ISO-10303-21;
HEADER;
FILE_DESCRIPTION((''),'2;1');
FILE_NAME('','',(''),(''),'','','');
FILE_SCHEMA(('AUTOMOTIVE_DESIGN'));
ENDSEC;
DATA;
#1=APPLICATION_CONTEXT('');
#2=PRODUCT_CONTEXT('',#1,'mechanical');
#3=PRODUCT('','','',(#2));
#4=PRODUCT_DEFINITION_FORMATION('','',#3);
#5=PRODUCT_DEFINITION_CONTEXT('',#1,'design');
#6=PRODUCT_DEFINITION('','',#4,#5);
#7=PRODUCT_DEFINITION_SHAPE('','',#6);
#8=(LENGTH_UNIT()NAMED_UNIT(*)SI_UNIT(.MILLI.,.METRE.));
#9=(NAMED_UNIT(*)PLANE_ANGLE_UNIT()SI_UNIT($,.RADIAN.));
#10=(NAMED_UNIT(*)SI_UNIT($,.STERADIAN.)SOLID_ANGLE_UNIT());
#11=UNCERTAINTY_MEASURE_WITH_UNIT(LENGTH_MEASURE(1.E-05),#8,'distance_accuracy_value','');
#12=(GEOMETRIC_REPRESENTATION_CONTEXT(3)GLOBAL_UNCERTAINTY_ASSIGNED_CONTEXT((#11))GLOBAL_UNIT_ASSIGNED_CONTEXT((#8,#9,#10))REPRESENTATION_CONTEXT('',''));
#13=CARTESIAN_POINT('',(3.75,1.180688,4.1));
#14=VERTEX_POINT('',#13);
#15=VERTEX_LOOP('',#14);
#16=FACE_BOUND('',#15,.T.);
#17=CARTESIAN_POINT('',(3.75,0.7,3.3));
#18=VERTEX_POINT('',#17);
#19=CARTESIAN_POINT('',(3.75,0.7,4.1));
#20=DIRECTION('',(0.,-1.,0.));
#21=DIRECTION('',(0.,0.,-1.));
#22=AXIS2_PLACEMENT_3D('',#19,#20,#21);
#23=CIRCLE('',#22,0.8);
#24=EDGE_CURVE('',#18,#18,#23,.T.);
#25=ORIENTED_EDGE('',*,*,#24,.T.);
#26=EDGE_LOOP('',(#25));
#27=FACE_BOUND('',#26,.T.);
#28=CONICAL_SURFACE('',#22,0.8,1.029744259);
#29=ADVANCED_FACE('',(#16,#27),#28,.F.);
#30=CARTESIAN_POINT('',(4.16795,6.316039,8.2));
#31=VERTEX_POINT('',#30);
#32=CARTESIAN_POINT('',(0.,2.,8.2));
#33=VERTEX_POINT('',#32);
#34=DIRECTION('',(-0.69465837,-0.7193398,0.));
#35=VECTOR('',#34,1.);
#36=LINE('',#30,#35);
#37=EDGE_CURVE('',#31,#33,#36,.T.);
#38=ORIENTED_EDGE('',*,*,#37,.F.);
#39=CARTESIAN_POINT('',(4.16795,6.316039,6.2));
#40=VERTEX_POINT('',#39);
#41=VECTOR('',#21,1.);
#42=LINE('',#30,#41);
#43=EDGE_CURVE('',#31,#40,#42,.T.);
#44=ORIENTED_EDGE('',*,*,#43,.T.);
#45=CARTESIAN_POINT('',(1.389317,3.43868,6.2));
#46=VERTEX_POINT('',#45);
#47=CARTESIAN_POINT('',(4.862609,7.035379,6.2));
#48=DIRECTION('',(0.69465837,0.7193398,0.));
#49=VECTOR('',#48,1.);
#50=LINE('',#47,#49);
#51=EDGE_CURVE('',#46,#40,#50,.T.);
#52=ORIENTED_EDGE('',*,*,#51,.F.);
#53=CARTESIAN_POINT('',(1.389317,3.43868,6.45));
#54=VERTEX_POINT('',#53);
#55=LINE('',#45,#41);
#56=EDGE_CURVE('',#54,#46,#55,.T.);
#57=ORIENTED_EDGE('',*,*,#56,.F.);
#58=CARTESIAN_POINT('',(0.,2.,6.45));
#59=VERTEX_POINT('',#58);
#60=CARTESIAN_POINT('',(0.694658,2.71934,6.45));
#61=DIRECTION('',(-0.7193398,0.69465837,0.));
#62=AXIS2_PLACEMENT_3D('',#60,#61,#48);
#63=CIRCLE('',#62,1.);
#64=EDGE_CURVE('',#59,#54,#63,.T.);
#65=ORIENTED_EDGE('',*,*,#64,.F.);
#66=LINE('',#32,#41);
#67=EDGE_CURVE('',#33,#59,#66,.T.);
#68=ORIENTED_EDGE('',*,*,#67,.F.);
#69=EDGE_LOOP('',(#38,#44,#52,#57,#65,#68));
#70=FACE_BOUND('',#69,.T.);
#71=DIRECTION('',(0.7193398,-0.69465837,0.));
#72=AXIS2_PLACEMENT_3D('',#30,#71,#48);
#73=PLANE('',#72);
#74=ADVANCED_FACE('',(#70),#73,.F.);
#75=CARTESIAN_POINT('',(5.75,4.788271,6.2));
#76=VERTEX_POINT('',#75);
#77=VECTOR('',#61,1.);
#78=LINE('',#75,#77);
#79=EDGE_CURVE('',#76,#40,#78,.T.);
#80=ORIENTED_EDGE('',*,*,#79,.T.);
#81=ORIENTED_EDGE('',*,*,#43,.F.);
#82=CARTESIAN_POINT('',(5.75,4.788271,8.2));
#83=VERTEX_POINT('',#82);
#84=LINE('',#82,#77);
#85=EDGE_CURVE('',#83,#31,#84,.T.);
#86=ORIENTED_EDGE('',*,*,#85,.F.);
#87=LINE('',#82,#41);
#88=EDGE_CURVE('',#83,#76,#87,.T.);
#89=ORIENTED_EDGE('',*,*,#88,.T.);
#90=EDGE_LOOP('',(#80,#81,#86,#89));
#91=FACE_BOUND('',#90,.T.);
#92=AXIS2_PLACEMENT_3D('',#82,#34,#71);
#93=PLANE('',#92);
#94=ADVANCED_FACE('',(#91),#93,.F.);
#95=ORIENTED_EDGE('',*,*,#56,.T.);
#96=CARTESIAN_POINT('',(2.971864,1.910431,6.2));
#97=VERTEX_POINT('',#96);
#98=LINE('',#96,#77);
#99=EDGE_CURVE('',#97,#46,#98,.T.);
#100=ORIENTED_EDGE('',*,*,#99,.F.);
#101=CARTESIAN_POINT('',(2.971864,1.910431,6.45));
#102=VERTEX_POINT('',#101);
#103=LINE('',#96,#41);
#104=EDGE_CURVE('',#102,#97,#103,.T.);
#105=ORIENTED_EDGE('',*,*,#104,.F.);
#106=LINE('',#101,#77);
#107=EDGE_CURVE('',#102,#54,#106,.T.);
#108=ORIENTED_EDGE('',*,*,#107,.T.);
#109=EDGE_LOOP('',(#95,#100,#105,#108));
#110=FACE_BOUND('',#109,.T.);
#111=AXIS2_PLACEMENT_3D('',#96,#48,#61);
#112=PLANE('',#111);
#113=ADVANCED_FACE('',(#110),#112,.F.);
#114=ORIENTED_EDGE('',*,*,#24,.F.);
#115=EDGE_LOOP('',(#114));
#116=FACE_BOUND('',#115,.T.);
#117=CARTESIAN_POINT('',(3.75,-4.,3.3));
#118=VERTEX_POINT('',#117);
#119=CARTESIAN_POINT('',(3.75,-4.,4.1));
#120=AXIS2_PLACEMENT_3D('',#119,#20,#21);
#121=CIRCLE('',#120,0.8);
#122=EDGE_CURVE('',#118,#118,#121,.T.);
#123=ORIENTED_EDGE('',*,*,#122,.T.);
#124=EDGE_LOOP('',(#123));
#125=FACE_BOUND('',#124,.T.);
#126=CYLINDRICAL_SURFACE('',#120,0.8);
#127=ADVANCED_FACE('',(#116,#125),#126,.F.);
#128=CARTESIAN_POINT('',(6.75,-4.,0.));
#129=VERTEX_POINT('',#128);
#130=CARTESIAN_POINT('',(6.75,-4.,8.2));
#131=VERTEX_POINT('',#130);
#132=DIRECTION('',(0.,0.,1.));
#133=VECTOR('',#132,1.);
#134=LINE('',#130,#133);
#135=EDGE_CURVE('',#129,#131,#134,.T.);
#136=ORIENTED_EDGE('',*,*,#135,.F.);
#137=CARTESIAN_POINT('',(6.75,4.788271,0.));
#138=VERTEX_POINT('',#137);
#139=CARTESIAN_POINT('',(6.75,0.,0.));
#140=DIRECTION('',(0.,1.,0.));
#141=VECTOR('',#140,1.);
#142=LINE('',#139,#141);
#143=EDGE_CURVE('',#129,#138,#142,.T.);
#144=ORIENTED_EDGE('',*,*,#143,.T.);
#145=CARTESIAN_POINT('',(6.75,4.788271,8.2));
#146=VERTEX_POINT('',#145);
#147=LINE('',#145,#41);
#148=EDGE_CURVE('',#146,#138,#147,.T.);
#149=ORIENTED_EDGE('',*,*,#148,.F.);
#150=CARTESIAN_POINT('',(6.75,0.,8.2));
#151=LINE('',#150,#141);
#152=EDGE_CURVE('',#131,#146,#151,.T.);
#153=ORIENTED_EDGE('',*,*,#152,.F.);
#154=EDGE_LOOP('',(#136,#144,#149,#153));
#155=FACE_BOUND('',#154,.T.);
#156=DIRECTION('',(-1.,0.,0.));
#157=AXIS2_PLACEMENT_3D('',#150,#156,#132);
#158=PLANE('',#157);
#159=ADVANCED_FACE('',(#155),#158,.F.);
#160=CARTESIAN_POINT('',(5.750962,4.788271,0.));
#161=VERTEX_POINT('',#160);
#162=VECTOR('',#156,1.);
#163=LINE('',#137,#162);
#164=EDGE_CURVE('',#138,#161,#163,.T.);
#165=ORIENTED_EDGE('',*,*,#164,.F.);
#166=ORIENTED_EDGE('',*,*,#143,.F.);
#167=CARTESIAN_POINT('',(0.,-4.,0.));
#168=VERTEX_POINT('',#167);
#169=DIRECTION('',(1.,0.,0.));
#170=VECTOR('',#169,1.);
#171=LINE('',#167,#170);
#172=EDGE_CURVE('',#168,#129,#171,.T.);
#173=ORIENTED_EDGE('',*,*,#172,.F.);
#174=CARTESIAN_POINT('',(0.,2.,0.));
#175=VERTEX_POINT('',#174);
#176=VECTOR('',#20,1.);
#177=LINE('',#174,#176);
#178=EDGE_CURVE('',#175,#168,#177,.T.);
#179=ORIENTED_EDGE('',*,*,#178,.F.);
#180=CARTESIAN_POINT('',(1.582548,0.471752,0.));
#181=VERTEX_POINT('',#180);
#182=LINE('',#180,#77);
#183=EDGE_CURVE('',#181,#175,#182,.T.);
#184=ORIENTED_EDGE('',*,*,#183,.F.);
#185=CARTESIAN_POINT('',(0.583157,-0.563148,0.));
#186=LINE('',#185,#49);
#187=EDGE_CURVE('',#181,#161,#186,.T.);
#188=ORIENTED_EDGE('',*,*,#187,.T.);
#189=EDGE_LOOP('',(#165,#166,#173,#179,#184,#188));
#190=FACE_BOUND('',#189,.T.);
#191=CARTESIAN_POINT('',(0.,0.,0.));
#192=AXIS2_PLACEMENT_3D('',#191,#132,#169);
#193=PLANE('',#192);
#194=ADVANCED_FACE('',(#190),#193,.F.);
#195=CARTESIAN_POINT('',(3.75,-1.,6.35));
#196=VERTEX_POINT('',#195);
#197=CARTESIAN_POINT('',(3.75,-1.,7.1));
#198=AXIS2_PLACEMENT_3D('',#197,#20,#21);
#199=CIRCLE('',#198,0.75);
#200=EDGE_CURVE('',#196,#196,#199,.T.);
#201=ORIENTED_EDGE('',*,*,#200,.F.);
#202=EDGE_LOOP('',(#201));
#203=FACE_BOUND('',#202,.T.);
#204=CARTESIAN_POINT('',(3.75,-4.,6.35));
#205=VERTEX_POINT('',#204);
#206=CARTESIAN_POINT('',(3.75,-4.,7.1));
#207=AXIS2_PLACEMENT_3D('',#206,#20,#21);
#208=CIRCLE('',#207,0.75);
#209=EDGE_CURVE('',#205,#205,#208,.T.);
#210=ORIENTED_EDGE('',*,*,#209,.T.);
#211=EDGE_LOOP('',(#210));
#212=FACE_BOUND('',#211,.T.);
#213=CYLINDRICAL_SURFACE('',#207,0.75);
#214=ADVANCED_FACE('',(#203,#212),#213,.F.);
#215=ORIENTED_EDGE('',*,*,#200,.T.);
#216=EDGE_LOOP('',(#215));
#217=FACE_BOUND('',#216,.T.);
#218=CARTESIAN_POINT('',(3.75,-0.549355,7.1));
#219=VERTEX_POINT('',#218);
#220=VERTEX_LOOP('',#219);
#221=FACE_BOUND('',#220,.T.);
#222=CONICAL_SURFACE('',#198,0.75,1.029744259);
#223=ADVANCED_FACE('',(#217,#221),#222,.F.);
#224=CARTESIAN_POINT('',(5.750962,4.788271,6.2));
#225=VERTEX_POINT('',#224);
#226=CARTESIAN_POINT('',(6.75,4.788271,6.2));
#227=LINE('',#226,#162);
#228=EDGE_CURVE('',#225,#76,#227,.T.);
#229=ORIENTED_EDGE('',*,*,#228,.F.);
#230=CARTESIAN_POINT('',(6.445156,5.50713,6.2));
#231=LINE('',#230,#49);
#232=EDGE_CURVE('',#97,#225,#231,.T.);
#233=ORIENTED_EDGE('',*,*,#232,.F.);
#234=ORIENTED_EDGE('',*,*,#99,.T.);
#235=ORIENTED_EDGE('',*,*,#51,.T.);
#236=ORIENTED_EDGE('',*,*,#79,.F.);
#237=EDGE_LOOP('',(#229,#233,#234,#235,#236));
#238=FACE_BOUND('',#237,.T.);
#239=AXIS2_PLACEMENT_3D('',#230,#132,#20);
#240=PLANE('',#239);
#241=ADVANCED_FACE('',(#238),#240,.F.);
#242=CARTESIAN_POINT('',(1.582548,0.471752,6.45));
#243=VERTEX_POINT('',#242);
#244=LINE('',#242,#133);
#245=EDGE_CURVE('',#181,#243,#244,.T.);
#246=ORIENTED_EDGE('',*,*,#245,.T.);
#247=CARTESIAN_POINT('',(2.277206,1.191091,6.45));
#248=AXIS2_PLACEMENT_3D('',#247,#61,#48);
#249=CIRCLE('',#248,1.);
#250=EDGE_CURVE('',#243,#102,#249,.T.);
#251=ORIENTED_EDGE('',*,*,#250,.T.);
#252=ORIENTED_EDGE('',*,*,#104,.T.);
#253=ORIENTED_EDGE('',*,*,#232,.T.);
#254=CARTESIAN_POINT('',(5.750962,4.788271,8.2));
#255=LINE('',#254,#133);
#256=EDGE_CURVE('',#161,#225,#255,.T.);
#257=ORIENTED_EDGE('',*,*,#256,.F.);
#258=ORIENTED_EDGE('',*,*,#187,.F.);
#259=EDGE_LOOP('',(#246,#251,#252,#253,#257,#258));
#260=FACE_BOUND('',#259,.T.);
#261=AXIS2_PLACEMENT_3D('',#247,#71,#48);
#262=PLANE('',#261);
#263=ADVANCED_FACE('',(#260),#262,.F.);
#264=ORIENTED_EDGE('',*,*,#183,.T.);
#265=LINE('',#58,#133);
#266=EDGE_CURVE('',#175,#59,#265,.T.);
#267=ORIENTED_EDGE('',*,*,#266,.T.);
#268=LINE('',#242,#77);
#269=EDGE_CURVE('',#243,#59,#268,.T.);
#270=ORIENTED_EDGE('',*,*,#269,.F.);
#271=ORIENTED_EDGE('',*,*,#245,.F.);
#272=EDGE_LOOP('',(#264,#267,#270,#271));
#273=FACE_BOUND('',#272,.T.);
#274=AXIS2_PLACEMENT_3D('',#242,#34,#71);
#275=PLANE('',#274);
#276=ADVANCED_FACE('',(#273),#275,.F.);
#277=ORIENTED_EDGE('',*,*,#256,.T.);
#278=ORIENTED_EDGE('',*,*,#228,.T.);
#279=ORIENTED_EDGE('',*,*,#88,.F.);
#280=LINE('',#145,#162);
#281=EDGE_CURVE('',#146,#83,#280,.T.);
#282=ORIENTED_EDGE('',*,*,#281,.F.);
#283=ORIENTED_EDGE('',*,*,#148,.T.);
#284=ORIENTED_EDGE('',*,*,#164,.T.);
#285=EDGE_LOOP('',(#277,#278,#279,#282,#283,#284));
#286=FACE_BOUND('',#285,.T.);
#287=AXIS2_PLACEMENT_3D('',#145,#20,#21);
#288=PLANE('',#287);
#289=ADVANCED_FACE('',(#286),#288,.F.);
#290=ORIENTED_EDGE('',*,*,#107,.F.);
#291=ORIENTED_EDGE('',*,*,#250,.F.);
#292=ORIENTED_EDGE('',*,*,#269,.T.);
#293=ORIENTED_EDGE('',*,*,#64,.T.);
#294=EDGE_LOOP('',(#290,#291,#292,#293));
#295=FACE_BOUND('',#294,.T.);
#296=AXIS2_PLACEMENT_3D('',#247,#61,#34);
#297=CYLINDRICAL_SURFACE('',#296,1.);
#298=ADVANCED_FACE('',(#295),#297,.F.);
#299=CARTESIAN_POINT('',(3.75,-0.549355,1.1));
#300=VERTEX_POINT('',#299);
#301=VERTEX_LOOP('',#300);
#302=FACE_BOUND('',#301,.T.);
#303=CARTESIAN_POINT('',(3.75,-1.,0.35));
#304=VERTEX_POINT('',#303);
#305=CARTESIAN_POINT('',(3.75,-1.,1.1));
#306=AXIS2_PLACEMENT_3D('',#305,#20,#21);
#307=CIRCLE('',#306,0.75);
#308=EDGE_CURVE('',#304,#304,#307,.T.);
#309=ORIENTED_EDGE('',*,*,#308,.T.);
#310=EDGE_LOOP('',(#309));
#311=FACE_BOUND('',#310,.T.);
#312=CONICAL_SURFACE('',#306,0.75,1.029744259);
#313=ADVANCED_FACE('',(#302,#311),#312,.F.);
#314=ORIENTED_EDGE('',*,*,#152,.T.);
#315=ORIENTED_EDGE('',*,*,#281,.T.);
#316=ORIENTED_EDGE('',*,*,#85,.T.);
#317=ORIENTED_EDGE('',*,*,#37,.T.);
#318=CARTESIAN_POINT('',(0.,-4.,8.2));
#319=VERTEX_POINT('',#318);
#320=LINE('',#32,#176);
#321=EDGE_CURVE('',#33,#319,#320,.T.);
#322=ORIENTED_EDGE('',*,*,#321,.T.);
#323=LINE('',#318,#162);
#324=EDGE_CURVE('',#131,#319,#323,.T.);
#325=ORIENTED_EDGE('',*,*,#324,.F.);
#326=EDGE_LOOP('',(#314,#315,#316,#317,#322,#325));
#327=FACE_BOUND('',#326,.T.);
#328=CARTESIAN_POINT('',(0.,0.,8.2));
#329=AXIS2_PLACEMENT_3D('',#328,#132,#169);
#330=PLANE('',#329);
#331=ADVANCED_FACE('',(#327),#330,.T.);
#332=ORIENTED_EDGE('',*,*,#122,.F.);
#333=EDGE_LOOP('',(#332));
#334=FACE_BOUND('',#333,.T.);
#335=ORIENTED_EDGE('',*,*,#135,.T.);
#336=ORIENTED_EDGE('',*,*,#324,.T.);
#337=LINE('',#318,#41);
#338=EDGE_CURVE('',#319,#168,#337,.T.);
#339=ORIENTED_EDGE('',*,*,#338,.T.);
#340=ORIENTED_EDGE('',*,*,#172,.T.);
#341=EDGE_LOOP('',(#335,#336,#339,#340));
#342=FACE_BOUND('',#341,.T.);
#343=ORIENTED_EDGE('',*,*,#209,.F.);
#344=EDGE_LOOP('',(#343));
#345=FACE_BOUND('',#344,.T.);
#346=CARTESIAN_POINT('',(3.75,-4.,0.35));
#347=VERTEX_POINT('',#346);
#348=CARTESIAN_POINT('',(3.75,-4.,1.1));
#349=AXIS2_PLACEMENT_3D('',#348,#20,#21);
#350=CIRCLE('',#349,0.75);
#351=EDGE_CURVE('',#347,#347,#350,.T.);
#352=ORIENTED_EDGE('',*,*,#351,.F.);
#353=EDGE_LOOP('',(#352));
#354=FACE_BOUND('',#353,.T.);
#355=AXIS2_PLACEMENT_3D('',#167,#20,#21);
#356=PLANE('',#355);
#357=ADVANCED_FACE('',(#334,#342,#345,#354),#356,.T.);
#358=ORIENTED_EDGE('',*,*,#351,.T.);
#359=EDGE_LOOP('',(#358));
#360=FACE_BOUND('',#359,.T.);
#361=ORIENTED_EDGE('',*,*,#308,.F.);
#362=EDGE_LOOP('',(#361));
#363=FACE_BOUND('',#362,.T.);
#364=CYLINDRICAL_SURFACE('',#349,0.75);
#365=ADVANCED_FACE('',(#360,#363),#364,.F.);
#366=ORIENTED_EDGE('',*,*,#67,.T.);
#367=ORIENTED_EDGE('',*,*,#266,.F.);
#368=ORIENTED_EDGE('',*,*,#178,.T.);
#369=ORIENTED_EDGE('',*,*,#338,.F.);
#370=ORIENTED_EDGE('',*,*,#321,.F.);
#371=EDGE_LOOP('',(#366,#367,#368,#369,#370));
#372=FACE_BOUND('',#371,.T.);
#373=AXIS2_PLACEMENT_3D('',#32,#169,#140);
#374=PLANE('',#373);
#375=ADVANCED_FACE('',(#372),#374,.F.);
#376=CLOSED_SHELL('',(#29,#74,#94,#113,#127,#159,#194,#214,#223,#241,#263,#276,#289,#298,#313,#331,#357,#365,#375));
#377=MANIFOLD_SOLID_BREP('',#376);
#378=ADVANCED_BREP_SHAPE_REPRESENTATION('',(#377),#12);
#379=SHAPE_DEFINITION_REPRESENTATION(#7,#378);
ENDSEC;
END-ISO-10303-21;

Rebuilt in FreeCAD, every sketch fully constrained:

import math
import FreeCAD as App
import Part
import Sketcher
Q = App.Units.Quantity

doc = App.newDocument("Part")
params = doc.addObject("Spreadsheet::Sheet", "Params")
for row, (alias, value) in enumerate([
    ("sketch1_width", "1 mm"),
    ("sketch1_height", "2 mm"),
    ("sketch1_length", "6 mm"),
    ("sketch1_width2", "6.75 mm"),
    ("pad1_length", "8.2 mm"),
    ("sketch2_radius", "1 mm"),
    ("sketch2_width", "7 mm"),
    ("sketch2_height", "6.2 mm"),
    ("sketch2_height2", "6.45 mm"),
    ("pocket1_length", "2.2 mm"),
    ("sketch3_height", "8.2 mm"),
    ("sketch3_width", "6.75 mm"),
    ("pad2_length", "4 mm"),
    ("sketch4_diameter", "1.6 mm"),
    ("hole_diameter", "1.6 mm"),
    ("hole_depth", "4.7 mm"),
    ("sketch5_diameter", "1.5 mm"),
    ("hole2_diameter", "1.5 mm"),
    ("hole2_depth", "3 mm"),
], start=1):
    params.set(f"A{row}", alias)
    params.set(f"B{row}", "=" + value)
    params.setAlias(f"B{row}", alias)

body = doc.addObject("PartDesign::Body", "Body")

# Sketch on XY plane
sketch1 = body.newObject("Sketcher::SketchObject", "Sketch")
sketch1.AttachmentSupport = (doc.getObject("XY_Plane"), [""])
sketch1.MapMode = "FlatFace"
sketch1.addGeometry(Part.LineSegment(App.Vector(0, 0, 0), App.Vector(6.8, 0, 0)), False)
sketch1.addGeometry(Part.LineSegment(App.Vector(6.8, 0, 0), App.Vector(6.8, 4.8, 0)), False)
sketch1.addGeometry(Part.LineSegment(App.Vector(6.8, 4.8, 0), App.Vector(5.8, 4.8, 0)), False)
sketch1.addGeometry(Part.LineSegment(App.Vector(5.8, 4.8, 0), App.Vector(4.2, 6.3, 0)), False)
sketch1.addGeometry(Part.LineSegment(App.Vector(4.2, 6.3, 0), App.Vector(0, 2, 0)), False)
sketch1.addGeometry(Part.LineSegment(App.Vector(0, 2, 0), App.Vector(0, 0, 0)), False)
sketch1.addConstraint(Sketcher.Constraint("Coincident", 0, 2, 1, 1))
sketch1.addConstraint(Sketcher.Constraint("Coincident", 1, 2, 2, 1))
sketch1.addConstraint(Sketcher.Constraint("Coincident", 2, 2, 3, 1))
sketch1.addConstraint(Sketcher.Constraint("Coincident", 3, 2, 4, 1))
sketch1.addConstraint(Sketcher.Constraint("Coincident", 4, 2, 5, 1))
sketch1.addConstraint(Sketcher.Constraint("Coincident", 5, 2, 0, 1))
sketch1.addConstraint(Sketcher.Constraint("Horizontal", 0))
sketch1.addConstraint(Sketcher.Constraint("Vertical", 1))
sketch1.addConstraint(Sketcher.Constraint("Horizontal", 2))
sketch1.addConstraint(Sketcher.Constraint("Vertical", 5))
sketch1.addConstraint(Sketcher.Constraint("Coincident", 5, 2, -1, 1))
sketch1.addConstraint(Sketcher.Constraint("Perpendicular", 3, 4))
sketch1.addConstraint(Sketcher.Constraint("DistanceX", 2, 2, 2, 1, Q("1 mm")))
sketch1.addConstraint(Sketcher.Constraint("DistanceY", 5, 2, 5, 1, Q("2 mm")))
sketch1.addConstraint(Sketcher.Constraint("Angle", 3, Q("136 deg")))
sketch1.addConstraint(Sketcher.Constraint("Distance", 4, Q("6 mm")))
sketch1.addConstraint(Sketcher.Constraint("DistanceX", 0, 1, 0, 2, Q("6.75 mm")))
sketch1.setExpression("Constraints[12]", "Params.sketch1_width")
sketch1.setExpression("Constraints[13]", "Params.sketch1_height")
sketch1.setExpression("Constraints[15]", "Params.sketch1_length")
sketch1.setExpression("Constraints[16]", "Params.sketch1_width2")
pad1 = body.newObject("PartDesign::Pad", "Pad")
pad1.Profile = sketch1
pad1.setExpression("Length", "Params.pad1_length")

# Sketch on an angled plane
sketch2 = body.newObject("Sketcher::SketchObject", "Sketch001")
sketch2.Placement = App.Placement(App.Vector(-0.999391, 0.965101, 0), App.Rotation(App.Vector(0.69465837, 0.7193398, 0), App.Vector(0, 0, -0.999999999), App.Vector(-0.7193398, 0.69465837, 0), "ZXY"))
sketch2.addGeometry(Part.LineSegment(App.Vector(8.44, -6.2, 0), App.Vector(8.44, 0, 0)), False)
sketch2.addGeometry(Part.LineSegment(App.Vector(8.44, 0, 0), App.Vector(1.44, 0, 0)), False)
sketch2.addGeometry(Part.LineSegment(App.Vector(1.44, 0, 0), App.Vector(1.44, -6.45, 0)), False)
sketch2.addGeometry(Part.ArcOfCircle(Part.Circle(App.Vector(2.44, -6.45, 0), App.Vector(0, 0, 1), 1), math.radians(180), math.radians(360)), False)
sketch2.addGeometry(Part.LineSegment(App.Vector(3.44, -6.45, 0), App.Vector(3.44, -6.2, 0)), False)
sketch2.addGeometry(Part.LineSegment(App.Vector(3.44, -6.2, 0), App.Vector(8.44, -6.2, 0)), False)
sketch2.addConstraint(Sketcher.Constraint("Coincident", 0, 2, 1, 1))
sketch2.addConstraint(Sketcher.Constraint("Coincident", 1, 2, 2, 1))
sketch2.addConstraint(Sketcher.Constraint("Tangent", 2, 2, 3, 1))
sketch2.addConstraint(Sketcher.Constraint("Tangent", 3, 2, 4, 1))
sketch2.addConstraint(Sketcher.Constraint("Coincident", 4, 2, 5, 1))
sketch2.addConstraint(Sketcher.Constraint("Coincident", 5, 2, 0, 1))
sketch2.addConstraint(Sketcher.Constraint("Vertical", 0))
sketch2.addConstraint(Sketcher.Constraint("Horizontal", 1))
sketch2.addConstraint(Sketcher.Constraint("Vertical", 2))
sketch2.addConstraint(Sketcher.Constraint("Vertical", 4))
sketch2.addConstraint(Sketcher.Constraint("Horizontal", 5))
sketch2.addConstraint(Sketcher.Constraint("PointOnObject", 0, 2, -1))
sketch2.addConstraint(Sketcher.Constraint("Radius", 3, Q("1 mm")))
sketch2.addConstraint(Sketcher.Constraint("DistanceX", 1, 2, 1, 1, Q("7 mm")))
sketch2.addConstraint(Sketcher.Constraint("DistanceY", 0, 1, 0, 2, Q("6.2 mm")))
sketch2.addConstraint(Sketcher.Constraint("DistanceY", 2, 2, 2, 1, Q("6.45 mm")))
sketch2.addConstraint(Sketcher.Constraint("DistanceX", -1, 1, 3, 3, Q("2.43868 mm")))
sketch2.setExpression("Constraints[12]", "Params.sketch2_radius")
sketch2.setExpression("Constraints[13]", "Params.sketch2_width")
sketch2.setExpression("Constraints[14]", "Params.sketch2_height")
sketch2.setExpression("Constraints[15]", "Params.sketch2_height2")
pocket1 = body.newObject("PartDesign::Pocket", "Pocket")
pocket1.Profile = sketch2
pocket1.setExpression("Length", "Params.pocket1_length")

# Sketch on XZ plane
sketch3 = body.newObject("Sketcher::SketchObject", "Sketch002")
sketch3.AttachmentSupport = (doc.getObject("XZ_Plane"), [""])
sketch3.MapMode = "FlatFace"
sketch3.addGeometry(Part.LineSegment(App.Vector(0, 8, 0), App.Vector(0, 0, 0)), False)
sketch3.addGeometry(Part.LineSegment(App.Vector(0, 0, 0), App.Vector(7, 0, 0)), False)
sketch3.addGeometry(Part.LineSegment(App.Vector(7, 0, 0), App.Vector(7, 8, 0)), False)
sketch3.addGeometry(Part.LineSegment(App.Vector(7, 8, 0), App.Vector(0, 8, 0)), False)
sketch3.addConstraint(Sketcher.Constraint("Coincident", 0, 2, 1, 1))
sketch3.addConstraint(Sketcher.Constraint("Coincident", 1, 2, 2, 1))
sketch3.addConstraint(Sketcher.Constraint("Coincident", 2, 2, 3, 1))
sketch3.addConstraint(Sketcher.Constraint("Coincident", 3, 2, 0, 1))
sketch3.addConstraint(Sketcher.Constraint("Vertical", 0))
sketch3.addConstraint(Sketcher.Constraint("Horizontal", 1))
sketch3.addConstraint(Sketcher.Constraint("Vertical", 2))
sketch3.addConstraint(Sketcher.Constraint("Horizontal", 3))
sketch3.addConstraint(Sketcher.Constraint("Coincident", 0, 2, -1, 1))
sketch3.addConstraint(Sketcher.Constraint("DistanceY", 0, 2, 0, 1, Q("8.2 mm")))
sketch3.addConstraint(Sketcher.Constraint("DistanceX", 1, 1, 1, 2, Q("6.75 mm")))
sketch3.setExpression("Constraints[9]", "Params.sketch3_height")
sketch3.setExpression("Constraints[10]", "Params.sketch3_width")
pad2 = body.newObject("PartDesign::Pad", "Pad001")
pad2.Profile = sketch3
pad2.setExpression("Length", "Params.pad2_length")

# Sketch on XZ plane
sketch4 = body.newObject("Sketcher::SketchObject", "Sketch003")
sketch4.AttachmentSupport = (doc.getObject("XZ_Plane"), [""])
sketch4.MapMode = "FlatFace"
sketch4.AttachmentOffset = App.Placement(App.Vector(0, 0, 4), App.Rotation())
sketch4.addGeometry(Part.Circle(App.Vector(3.8, 4.1, 0), App.Vector(0, 0, 1), 0.8), False)
sketch4.addConstraint(Sketcher.Constraint("Diameter", 0, Q("1.6 mm")))
sketch4.addConstraint(Sketcher.Constraint("DistanceY", -1, 1, 0, 3, Q("4.1 mm")))
sketch4.addConstraint(Sketcher.Constraint("DistanceX", -1, 1, 0, 3, Q("3.75 mm")))
sketch4.setExpression("Constraints[0]", "Params.sketch4_diameter")
doc.recompute()
hole = body.newObject("PartDesign::Hole", "Hole")
hole.Profile = sketch4
hole.ThreadType = "None"
hole.setExpression("Diameter", "Params.hole_diameter")
hole.DepthType = "Dimension"
hole.setExpression("Depth", "Params.hole_depth")
hole.DrillPoint = "Angled"
hole.DrillPointAngle = 118

# Sketch on XZ plane
sketch5 = body.newObject("Sketcher::SketchObject", "Sketch004")
sketch5.AttachmentSupport = (doc.getObject("XZ_Plane"), [""])
sketch5.MapMode = "FlatFace"
sketch5.AttachmentOffset = App.Placement(App.Vector(0, 0, 4), App.Rotation())
sketch5.addGeometry(Part.Circle(App.Vector(3.8, 7.1, 0), App.Vector(0, 0, 1), 0.8), False)
sketch5.addGeometry(Part.Circle(App.Vector(3.8, 1.1, 0), App.Vector(0, 0, 1), 0.8), False)
sketch5.addConstraint(Sketcher.Constraint("Equal", 0, 1))
sketch5.addConstraint(Sketcher.Constraint("Vertical", 0, 3, 1, 3))
sketch5.addConstraint(Sketcher.Constraint("Diameter", 0, Q("1.5 mm")))
sketch5.addConstraint(Sketcher.Constraint("DistanceY", 1, 3, 0, 3, Q("6 mm")))
sketch5.addConstraint(Sketcher.Constraint("DistanceY", -1, 1, 0, 3, Q("7.1 mm")))
sketch5.addConstraint(Sketcher.Constraint("DistanceX", -1, 1, 0, 3, Q("3.75 mm")))
sketch5.setExpression("Constraints[2]", "Params.sketch5_diameter")
doc.recompute()
hole2 = body.newObject("PartDesign::Hole", "Hole001")
hole2.Profile = sketch5
hole2.ThreadType = "None"
hole2.setExpression("Diameter", "Params.hole2_diameter")
hole2.DepthType = "Dimension"
hole2.setExpression("Depth", "Params.hole2_depth")
hole2.DrillPoint = "Angled"
hole2.DrillPointAngle = 118

doc.recompute()
